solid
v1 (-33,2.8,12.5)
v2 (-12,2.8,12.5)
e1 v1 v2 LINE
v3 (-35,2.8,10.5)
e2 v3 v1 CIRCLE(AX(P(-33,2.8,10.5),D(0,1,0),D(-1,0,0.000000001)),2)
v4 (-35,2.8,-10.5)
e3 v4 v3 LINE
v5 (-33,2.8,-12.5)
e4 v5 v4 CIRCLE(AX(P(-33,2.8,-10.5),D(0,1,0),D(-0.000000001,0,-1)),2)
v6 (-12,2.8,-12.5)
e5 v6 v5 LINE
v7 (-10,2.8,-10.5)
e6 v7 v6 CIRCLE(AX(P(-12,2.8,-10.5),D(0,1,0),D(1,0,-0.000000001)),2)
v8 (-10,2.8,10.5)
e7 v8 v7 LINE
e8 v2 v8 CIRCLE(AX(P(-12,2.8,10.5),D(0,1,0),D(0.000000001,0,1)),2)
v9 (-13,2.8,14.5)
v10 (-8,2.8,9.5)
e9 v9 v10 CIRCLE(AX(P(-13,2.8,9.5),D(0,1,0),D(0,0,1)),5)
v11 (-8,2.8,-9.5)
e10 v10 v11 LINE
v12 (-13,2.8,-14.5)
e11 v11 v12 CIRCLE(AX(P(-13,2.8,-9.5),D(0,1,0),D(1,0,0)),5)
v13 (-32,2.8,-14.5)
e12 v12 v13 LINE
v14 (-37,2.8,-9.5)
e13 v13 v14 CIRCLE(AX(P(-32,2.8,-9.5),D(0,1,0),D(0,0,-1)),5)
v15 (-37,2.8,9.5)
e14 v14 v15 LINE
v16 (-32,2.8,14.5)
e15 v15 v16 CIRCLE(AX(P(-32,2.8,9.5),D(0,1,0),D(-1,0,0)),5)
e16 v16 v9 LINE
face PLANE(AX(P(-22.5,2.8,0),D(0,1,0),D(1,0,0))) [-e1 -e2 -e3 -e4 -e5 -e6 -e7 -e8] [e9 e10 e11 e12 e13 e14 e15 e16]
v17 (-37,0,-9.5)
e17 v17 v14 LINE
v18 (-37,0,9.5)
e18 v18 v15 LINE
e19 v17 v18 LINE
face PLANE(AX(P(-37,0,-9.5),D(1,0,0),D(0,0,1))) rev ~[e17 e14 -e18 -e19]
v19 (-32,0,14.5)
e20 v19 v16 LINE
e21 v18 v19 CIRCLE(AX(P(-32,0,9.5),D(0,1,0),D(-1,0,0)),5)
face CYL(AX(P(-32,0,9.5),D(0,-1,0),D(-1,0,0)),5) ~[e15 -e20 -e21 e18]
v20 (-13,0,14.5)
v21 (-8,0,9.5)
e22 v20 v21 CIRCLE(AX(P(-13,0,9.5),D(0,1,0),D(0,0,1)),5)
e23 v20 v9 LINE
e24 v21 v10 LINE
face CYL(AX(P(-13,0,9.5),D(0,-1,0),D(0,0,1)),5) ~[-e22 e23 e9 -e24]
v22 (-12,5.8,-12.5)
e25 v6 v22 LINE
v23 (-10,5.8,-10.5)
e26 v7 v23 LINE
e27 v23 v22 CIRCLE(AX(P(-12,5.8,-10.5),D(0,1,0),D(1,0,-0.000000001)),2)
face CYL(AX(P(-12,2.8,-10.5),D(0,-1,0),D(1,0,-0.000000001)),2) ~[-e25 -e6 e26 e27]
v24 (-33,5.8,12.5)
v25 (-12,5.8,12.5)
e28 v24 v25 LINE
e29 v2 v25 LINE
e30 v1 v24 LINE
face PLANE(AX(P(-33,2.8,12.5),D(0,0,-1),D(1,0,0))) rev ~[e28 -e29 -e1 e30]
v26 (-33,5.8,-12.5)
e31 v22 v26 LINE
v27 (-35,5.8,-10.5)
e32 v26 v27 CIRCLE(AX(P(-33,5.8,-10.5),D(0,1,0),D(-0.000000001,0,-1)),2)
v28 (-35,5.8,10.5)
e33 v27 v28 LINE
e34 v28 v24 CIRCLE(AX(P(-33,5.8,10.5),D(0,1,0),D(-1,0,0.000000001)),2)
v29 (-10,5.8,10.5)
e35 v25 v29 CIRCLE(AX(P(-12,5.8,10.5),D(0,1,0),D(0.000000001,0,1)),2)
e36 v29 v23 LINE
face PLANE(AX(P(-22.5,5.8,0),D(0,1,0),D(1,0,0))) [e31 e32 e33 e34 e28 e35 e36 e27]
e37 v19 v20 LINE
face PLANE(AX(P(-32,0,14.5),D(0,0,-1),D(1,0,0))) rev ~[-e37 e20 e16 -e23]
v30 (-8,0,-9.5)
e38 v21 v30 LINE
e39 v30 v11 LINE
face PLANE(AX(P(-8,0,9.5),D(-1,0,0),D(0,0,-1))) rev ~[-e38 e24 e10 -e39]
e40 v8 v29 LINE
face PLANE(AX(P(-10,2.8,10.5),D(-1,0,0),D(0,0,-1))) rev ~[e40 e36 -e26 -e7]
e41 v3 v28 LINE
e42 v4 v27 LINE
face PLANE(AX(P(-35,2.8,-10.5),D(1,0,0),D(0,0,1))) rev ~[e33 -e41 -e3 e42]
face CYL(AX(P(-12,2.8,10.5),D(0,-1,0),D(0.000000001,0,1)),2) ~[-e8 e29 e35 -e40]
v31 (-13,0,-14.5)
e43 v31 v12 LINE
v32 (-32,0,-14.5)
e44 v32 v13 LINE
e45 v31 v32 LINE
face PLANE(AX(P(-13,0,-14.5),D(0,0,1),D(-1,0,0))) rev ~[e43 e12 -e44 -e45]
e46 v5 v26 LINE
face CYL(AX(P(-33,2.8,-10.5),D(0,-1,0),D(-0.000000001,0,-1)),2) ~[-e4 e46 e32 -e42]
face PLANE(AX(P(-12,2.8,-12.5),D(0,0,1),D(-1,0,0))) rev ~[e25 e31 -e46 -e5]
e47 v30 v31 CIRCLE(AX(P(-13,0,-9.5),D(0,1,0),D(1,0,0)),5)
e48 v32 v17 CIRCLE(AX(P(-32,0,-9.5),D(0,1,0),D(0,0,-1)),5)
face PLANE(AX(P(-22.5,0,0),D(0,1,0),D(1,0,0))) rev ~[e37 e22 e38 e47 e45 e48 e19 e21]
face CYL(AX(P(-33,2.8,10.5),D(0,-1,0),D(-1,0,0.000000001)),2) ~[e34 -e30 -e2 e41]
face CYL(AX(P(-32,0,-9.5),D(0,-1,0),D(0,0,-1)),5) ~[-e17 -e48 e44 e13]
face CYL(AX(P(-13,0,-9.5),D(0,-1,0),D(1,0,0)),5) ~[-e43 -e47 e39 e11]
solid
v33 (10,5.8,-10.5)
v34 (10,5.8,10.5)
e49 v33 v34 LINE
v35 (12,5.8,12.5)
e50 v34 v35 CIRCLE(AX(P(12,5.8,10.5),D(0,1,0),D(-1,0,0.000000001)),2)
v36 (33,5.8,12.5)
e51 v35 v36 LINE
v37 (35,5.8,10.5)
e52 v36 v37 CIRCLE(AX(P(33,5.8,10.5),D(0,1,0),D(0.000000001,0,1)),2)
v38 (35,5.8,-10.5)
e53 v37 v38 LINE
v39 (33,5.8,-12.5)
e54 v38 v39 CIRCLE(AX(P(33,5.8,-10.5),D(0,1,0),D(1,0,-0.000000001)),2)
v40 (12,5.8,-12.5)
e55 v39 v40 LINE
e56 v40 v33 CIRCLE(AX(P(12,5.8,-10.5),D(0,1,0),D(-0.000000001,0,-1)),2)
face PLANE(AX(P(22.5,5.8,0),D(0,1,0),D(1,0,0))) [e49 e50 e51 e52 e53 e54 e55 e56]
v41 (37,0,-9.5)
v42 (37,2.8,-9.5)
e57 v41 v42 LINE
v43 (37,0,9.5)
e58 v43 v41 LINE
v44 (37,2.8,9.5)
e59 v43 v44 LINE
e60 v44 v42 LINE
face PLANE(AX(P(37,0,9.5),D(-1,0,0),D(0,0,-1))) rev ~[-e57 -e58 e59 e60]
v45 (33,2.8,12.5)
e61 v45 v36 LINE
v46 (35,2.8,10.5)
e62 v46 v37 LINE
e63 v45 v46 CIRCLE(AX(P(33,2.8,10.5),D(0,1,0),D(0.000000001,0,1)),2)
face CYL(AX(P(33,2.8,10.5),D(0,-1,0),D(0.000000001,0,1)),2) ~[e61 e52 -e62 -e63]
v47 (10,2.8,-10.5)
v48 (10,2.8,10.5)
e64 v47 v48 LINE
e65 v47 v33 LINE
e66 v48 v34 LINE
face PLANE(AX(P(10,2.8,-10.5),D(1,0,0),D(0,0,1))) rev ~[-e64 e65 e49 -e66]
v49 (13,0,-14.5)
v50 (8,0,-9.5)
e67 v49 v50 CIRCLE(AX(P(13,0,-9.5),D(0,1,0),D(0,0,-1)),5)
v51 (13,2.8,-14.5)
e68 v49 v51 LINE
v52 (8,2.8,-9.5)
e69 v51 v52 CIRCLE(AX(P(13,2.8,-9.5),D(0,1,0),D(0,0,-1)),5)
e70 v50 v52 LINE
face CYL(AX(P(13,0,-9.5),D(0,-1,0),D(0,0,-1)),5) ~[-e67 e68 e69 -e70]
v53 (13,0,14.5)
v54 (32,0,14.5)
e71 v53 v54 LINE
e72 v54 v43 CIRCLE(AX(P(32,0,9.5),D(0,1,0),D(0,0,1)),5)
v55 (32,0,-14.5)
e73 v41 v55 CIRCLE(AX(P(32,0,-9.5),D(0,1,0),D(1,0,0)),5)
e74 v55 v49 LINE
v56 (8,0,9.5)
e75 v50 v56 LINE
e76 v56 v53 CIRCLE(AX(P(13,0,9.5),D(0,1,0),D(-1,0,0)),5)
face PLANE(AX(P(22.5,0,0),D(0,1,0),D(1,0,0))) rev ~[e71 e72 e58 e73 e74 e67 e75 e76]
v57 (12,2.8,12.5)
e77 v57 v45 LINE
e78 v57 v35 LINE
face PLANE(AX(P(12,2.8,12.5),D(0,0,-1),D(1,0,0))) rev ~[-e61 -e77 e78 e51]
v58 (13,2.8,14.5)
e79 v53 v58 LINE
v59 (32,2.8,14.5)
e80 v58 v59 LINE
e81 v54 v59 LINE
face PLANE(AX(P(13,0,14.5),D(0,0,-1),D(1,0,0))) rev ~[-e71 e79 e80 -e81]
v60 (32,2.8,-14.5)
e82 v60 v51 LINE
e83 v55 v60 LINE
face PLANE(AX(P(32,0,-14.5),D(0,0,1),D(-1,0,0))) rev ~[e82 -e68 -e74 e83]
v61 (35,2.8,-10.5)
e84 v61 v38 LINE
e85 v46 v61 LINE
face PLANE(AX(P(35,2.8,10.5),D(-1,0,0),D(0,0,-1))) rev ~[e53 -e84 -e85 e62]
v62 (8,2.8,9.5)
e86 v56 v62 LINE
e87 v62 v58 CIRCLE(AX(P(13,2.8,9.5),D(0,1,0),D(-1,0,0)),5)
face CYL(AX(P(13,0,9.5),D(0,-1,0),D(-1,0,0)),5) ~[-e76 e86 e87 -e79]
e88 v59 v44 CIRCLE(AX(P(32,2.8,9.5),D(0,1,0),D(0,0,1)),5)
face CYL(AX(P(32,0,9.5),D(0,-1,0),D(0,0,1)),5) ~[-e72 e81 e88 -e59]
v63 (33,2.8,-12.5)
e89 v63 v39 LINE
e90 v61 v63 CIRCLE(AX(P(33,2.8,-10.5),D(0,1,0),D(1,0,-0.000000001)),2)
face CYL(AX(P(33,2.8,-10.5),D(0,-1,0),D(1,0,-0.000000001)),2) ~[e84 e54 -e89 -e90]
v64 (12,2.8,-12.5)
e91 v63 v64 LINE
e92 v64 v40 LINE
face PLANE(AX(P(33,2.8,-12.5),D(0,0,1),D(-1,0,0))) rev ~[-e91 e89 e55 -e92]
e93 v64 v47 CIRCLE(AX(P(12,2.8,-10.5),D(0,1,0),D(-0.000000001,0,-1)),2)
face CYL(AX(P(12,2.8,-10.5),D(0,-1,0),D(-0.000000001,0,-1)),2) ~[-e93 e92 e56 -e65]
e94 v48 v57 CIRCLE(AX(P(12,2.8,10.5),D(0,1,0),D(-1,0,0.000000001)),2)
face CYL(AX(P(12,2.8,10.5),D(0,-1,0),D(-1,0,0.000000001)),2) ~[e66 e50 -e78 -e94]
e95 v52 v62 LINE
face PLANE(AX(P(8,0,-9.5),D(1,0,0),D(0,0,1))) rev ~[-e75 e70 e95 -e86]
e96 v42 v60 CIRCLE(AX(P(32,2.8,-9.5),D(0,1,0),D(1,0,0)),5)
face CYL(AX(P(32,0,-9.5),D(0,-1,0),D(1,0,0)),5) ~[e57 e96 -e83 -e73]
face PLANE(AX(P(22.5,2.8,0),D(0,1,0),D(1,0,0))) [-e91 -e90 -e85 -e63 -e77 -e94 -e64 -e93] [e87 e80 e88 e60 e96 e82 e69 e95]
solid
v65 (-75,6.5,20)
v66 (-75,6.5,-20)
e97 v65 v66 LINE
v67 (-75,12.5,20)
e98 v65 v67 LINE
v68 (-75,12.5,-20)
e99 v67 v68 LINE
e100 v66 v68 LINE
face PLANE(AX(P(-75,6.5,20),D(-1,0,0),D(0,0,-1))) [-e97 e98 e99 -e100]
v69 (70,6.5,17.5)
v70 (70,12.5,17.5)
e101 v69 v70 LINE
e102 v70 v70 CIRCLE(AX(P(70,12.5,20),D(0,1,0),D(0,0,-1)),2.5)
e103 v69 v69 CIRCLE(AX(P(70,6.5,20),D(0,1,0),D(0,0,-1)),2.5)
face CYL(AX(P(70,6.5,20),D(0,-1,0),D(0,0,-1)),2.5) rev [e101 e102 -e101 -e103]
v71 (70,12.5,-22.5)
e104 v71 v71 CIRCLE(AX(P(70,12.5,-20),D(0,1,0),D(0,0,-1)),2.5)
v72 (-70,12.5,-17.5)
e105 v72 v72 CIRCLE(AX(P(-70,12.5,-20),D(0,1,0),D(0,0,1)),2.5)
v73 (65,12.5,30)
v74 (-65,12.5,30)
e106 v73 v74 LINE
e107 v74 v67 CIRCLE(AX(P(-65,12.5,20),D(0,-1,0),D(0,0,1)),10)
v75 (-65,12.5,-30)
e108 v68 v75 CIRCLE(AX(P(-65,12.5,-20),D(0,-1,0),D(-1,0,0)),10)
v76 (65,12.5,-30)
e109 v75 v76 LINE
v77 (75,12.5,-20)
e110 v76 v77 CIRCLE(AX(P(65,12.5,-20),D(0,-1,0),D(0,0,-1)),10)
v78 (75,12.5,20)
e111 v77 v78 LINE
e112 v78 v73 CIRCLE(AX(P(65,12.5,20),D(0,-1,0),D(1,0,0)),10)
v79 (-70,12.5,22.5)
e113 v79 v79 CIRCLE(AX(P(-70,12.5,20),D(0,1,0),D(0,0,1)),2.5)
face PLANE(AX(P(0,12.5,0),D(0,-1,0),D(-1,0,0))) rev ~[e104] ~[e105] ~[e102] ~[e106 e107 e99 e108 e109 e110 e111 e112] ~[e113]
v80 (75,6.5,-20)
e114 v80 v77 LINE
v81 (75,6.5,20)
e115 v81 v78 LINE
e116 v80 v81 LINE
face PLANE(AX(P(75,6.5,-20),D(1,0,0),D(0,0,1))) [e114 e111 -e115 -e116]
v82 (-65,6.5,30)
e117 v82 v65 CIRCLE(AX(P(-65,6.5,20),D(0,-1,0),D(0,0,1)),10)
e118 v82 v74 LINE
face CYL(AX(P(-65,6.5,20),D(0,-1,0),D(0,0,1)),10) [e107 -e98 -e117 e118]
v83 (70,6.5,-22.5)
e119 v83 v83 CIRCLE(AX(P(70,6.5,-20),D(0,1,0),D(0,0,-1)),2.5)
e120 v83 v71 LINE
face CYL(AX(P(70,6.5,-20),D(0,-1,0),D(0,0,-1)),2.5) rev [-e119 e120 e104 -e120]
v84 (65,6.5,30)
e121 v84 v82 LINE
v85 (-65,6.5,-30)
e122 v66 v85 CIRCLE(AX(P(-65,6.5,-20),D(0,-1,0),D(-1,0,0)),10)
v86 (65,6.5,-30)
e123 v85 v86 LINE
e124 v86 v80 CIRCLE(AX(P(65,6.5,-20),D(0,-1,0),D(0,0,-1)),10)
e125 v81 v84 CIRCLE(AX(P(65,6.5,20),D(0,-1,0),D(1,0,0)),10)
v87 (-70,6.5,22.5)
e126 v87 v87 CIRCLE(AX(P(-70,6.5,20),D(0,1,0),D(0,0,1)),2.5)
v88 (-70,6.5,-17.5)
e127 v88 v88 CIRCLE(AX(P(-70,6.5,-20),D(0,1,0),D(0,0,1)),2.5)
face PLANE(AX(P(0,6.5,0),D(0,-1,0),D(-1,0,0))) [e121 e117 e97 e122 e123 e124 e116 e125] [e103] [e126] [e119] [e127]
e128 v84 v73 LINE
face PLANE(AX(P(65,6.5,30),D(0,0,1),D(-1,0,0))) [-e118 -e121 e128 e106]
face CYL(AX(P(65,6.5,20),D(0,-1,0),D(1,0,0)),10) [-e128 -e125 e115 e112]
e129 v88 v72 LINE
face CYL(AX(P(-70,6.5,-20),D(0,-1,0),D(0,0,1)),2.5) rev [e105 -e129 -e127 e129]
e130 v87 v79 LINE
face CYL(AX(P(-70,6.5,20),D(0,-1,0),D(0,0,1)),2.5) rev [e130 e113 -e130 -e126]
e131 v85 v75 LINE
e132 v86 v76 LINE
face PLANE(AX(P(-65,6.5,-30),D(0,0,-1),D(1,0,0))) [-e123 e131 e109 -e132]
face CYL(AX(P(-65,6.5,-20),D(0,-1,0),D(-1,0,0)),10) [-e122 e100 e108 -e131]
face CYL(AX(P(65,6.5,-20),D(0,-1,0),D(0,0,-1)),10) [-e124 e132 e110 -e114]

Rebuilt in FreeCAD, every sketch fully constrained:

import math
import FreeCAD as App
import Part
import Sketcher

V = App.Vector
Q = App.Units.Quantity

doc = App.newDocument("Part")
body = doc.addObject("PartDesign::Body", "Body")

# Sketch on XZ plane
sketch1 = body.newObject("Sketcher::SketchObject", "Sketch")
sketch1.AttachmentSupport = (doc.getObject("XZ_Plane"), [""])
sketch1.MapMode = "FlatFace"
sketch1.addGeometry([
    Part.LineSegment(V(-32, 14, 0), V(-13, 14, 0)),  # 0
    Part.ArcOfCircle(Part.Circle(V(-13, 10, 0), V(0, 0, 1), 5), math.radians(0), math.radians(90)),  # 1
    Part.LineSegment(V(-8, 10, 0), V(-8, -10, 0)),  # 2
    Part.ArcOfCircle(Part.Circle(V(-13, -10, 0), V(0, 0, 1), 5), math.radians(-90), math.radians(0)),  # 3
    Part.LineSegment(V(-13, -14, 0), V(-32, -14, 0)),  # 4
    Part.ArcOfCircle(Part.Circle(V(-32, -10, 0), V(0, 0, 1), 5), math.radians(180), math.radians(270)),  # 5
    Part.LineSegment(V(-37, -10, 0), V(-37, 10, 0)),  # 6
    Part.ArcOfCircle(Part.Circle(V(-32, 10, 0), V(0, 0, 1), 5), math.radians(90), math.radians(180)),  # 7
], False)
sketch1.addConstraint([
    Sketcher.Constraint("Tangent", 0, 2, 1, 2),
    Sketcher.Constraint("Tangent", 1, 1, 2, 1),
    Sketcher.Constraint("Tangent", 2, 2, 3, 2),
    Sketcher.Constraint("Tangent", 3, 1, 4, 1),
    Sketcher.Constraint("Tangent", 4, 2, 5, 2),
    Sketcher.Constraint("Tangent", 5, 1, 6, 1),
    Sketcher.Constraint("Tangent", 6, 2, 7, 2),
    Sketcher.Constraint("Tangent", 7, 1, 0, 1),
    Sketcher.Constraint("Horizontal", 0),
    Sketcher.Constraint("Vertical", 2),
    Sketcher.Constraint("Horizontal", 4),
    Sketcher.Constraint("Vertical", 6),
    Sketcher.Constraint("Equal", 1, 3),
    Sketcher.Constraint("Equal", 3, 5),
    Sketcher.Constraint("Equal", 5, 7),
    Sketcher.Constraint("Equal", 4, 2),
    Sketcher.Constraint("Radius", 1, Q("5 mm")),
    Sketcher.Constraint("DistanceX", 0, 1, 0, 2, Q("19 mm")),
    Sketcher.Constraint("DistanceX", 1, 3, -1, 1, Q("13 mm")),
    Sketcher.Constraint("DistanceY", -1, 1, 1, 3, Q("9.5 mm")),
])
pad1 = body.newObject("PartDesign::Pad", "Pad")
pad1.Profile = sketch1
pad1.Length = 2.8
pad1.Reversed = True
body2 = doc.addObject("PartDesign::Body", "Body001")

# Sketch on XZ plane
sketch2 = body2.newObject("Sketcher::SketchObject", "Sketch001")
sketch2.AttachmentSupport = (doc.getObject("XZ_Plane001"), [""])
sketch2.MapMode = "FlatFace"
sketch2.addGeometry([
    Part.LineSegment(V(13, 14, 0), V(32, 14, 0)),  # 0
    Part.ArcOfCircle(Part.Circle(V(32, 10, 0), V(0, 0, 1), 5), math.radians(0), math.radians(90)),  # 1
    Part.LineSegment(V(37, 10, 0), V(37, -10, 0)),  # 2
    Part.ArcOfCircle(Part.Circle(V(32, -10, 0), V(0, 0, 1), 5), math.radians(-90), math.radians(0)),  # 3
    Part.LineSegment(V(32, -14, 0), V(13, -14, 0)),  # 4
    Part.ArcOfCircle(Part.Circle(V(13, -10, 0), V(0, 0, 1), 5), math.radians(180), math.radians(270)),  # 5
    Part.LineSegment(V(8, -10, 0), V(8, 10, 0)),  # 6
    Part.ArcOfCircle(Part.Circle(V(13, 10, 0), V(0, 0, 1), 5), math.radians(90), math.radians(180)),  # 7
], False)
sketch2.addConstraint([
    Sketcher.Constraint("Tangent", 0, 2, 1, 2),
    Sketcher.Constraint("Tangent", 1, 1, 2, 1),
    Sketcher.Constraint("Tangent", 2, 2, 3, 2),
    Sketcher.Constraint("Tangent", 3, 1, 4, 1),
    Sketcher.Constraint("Tangent", 4, 2, 5, 2),
    Sketcher.Constraint("Tangent", 5, 1, 6, 1),
    Sketcher.Constraint("Tangent", 6, 2, 7, 2),
    Sketcher.Constraint("Tangent", 7, 1, 0, 1),
    Sketcher.Constraint("Horizontal", 0),
    Sketcher.Constraint("Vertical", 2),
    Sketcher.Constraint("Horizontal", 4),
    Sketcher.Constraint("Vertical", 6),
    Sketcher.Constraint("Equal", 1, 3),
    Sketcher.Constraint("Equal", 3, 5),
    Sketcher.Constraint("Equal", 5, 7),
    Sketcher.Constraint("Equal", 4, 2),
    Sketcher.Constraint("Radius", 1, Q("5 mm")),
    Sketcher.Constraint("DistanceX", 0, 1, 0, 2, Q("19 mm")),
    Sketcher.Constraint("DistanceX", -1, 1, 1, 3, Q("32 mm")),
    Sketcher.Constraint("DistanceY", -1, 1, 1, 3, Q("9.5 mm")),
])
pad2 = body2.newObject("PartDesign::Pad", "Pad001")
pad2.Profile = sketch2
pad2.Length = 2.8
pad2.Reversed = True
body.AllowCompound = True
doc.recompute()

boolean = body.newObject("PartDesign::Boolean", "Boolean")
boolean.Type = "Fuse"
boolean.addObjects([body2])

# Sketch on XZ plane
sketch3 = body.newObject("Sketcher::SketchObject", "Sketch002")
sketch3.AttachmentSupport = (doc.getObject("XZ_Plane"), [""])
sketch3.MapMode = "FlatFace"
sketch3.AttachmentOffset = App.Placement(V(0, 0, -2.8), App.Rotation())
sketch3.addGeometry([
    Part.LineSegment(V(-33, 12.5, 0), V(-12, 12.5, 0)),  # 0
    Part.ArcOfCircle(Part.Circle(V(-12, 10.5, 0), V(0, 0, 1), 2), math.radians(0), math.radians(90)),  # 1
    Part.LineSegment(V(-10, 10.5, 0), V(-10, -10.5, 0)),  # 2
    Part.ArcOfCircle(Part.Circle(V(-12, -10.5, 0), V(0, 0, 1), 2), math.radians(-90), math.radians(0)),  # 3
    Part.LineSegment(V(-12, -12.5, 0), V(-33, -12.5, 0)),  # 4
    Part.ArcOfCircle(Part.Circle(V(-33, -10.5, 0), V(0, 0, 1), 2), math.radians(-180), math.radians(-90)),  # 5
    Part.LineSegment(V(-35, -10.5, 0), V(-35, 10.5, 0)),  # 6
    Part.ArcOfCircle(Part.Circle(V(-33, 10.5, 0), V(0, 0, 1), 2), math.radians(90), math.radians(180)),  # 7
    Part.LineSegment(V(12, 12.5, 0), V(33, 12.5, 0)),  # 8
    Part.ArcOfCircle(Part.Circle(V(33, 10.5, 0), V(0, 0, 1), 2), math.radians(0), math.radians(90)),  # 9
    Part.LineSegment(V(35, 10.5, 0), V(35, -10.5, 0)),  # 10
    Part.ArcOfCircle(Part.Circle(V(33, -10.5, 0), V(0, 0, 1), 2), math.radians(-90), math.radians(0)),  # 11
    Part.LineSegment(V(33, -12.5, 0), V(12, -12.5, 0)),  # 12
    Part.ArcOfCircle(Part.Circle(V(12, -10.5, 0), V(0, 0, 1), 2), math.radians(-180), math.radians(-90)),  # 13
    Part.LineSegment(V(10, -10.5, 0), V(10, 10.5, 0)),  # 14
    Part.ArcOfCircle(Part.Circle(V(12, 10.5, 0), V(0, 0, 1), 2), math.radians(90), math.radians(180)),  # 15
], False)
sketch3.addConstraint([
    Sketcher.Constraint("Tangent", 0, 2, 1, 2),
    Sketcher.Constraint("Tangent", 1, 1, 2, 1),
    Sketcher.Constraint("Tangent", 2, 2, 3, 2),
    Sketcher.Constraint("Tangent", 3, 1, 4, 1),
    Sketcher.Constraint("Tangent", 4, 2, 5, 2),
    Sketcher.Constraint("Tangent", 5, 1, 6, 1),
    Sketcher.Constraint("Tangent", 6, 2, 7, 2),
    Sketcher.Constraint("Tangent", 7, 1, 0, 1),
    Sketcher.Constraint("Tangent", 8, 2, 9, 2),
    Sketcher.Constraint("Tangent", 9, 1, 10, 1),
    Sketcher.Constraint("Tangent", 10, 2, 11, 2),
    Sketcher.Constraint("Tangent", 11, 1, 12, 1),
    Sketcher.Constraint("Tangent", 12, 2, 13, 2),
    Sketcher.Constraint("Tangent", 13, 1, 14, 1),
    Sketcher.Constraint("Tangent", 14, 2, 15, 2),
    Sketcher.Constraint("Tangent", 15, 1, 8, 1),
    Sketcher.Constraint("Horizontal", 0),
    Sketcher.Constraint("Vertical", 2),
    Sketcher.Constraint("Horizontal", 4),
    Sketcher.Constraint("Vertical", 6),
    Sketcher.Constraint("Horizontal", 8),
    Sketcher.Constraint("Vertical", 10),
    Sketcher.Constraint("Horizontal", 12),
    Sketcher.Constraint("Vertical", 14),
    Sketcher.Constraint("Equal", 1, 3),
    Sketcher.Constraint("Equal", 3, 5),
    Sketcher.Constraint("Equal", 5, 7),
    Sketcher.Constraint("Equal", 7, 9),
    Sketcher.Constraint("Equal", 9, 11),
    Sketcher.Constraint("Equal", 11, 13),
    Sketcher.Constraint("Equal", 13, 15),
    Sketcher.Constraint("Symmetric", 5, 3, 9, 3, -1, 1),
    Sketcher.Constraint("Symmetric", 1, 3, 13, 3, -1, 1),
    Sketcher.Constraint("Horizontal", 7, 3, 9, 3),
    Sketcher.Constraint("Equal", 12, 2),
    Sketcher.Constraint("Radius", 1, Q("2 mm")),
    Sketcher.Constraint("DistanceX", 0, 1, 0, 2, Q("21 mm")),
    Sketcher.Constraint("DistanceX", 1, 3, -1, 1, Q("12 mm")),
])
pad3 = body.newObject("PartDesign::Pad", "Pad002")
pad3.Profile = sketch3
pad3.Length = 3
pad3.Reversed = True
body3 = doc.addObject("PartDesign::Body", "Body002")

# Sketch on XZ plane
sketch4 = body3.newObject("Sketcher::SketchObject", "Sketch003")
sketch4.AttachmentSupport = (doc.getObject("XZ_Plane002"), [""])
sketch4.MapMode = "FlatFace"
sketch4.AttachmentOffset = App.Placement(V(0, 0, -6.5), App.Rotation())
sketch4.addGeometry([
    Part.LineSegment(V(-65, 30, 0), V(65, 30, 0)),  # 0
    Part.ArcOfCircle(Part.Circle(V(65, 20, 0), V(0, 0, 1), 10), math.radians(0), math.radians(90)),  # 1
    Part.LineSegment(V(75, 20, 0), V(75, -20, 0)),  # 2
    Part.ArcOfCircle(Part.Circle(V(65, -20, 0), V(0, 0, 1), 10), math.radians(-90), math.radians(0)),  # 3
    Part.LineSegment(V(65, -30, 0), V(-65, -30, 0)),  # 4
    Part.ArcOfCircle(Part.Circle(V(-65, -20, 0), V(0, 0, 1), 10), math.radians(180), math.radians(270)),  # 5
    Part.LineSegment(V(-75, -20, 0), V(-75, 20, 0)),  # 6
    Part.ArcOfCircle(Part.Circle(V(-65, 20, 0), V(0, 0, 1), 10), math.radians(90), math.radians(180)),  # 7
    Part.Circle(V(70, 20, 0), V(0, 0, 1), 2.5),  # 8
    Part.Circle(V(-70, 20, 0), V(0, 0, 1), 2.5),  # 9
    Part.Circle(V(70, -20, 0), V(0, 0, 1), 2.5),  # 10
    Part.Circle(V(-70, -20, 0), V(0, 0, 1), 2.5),  # 11
], False)
sketch4.addConstraint([
    Sketcher.Constraint("Tangent", 0, 2, 1, 2),
    Sketcher.Constraint("Tangent", 1, 1, 2, 1),
    Sketcher.Constraint("Tangent", 2, 2, 3, 2),
    Sketcher.Constraint("Tangent", 3, 1, 4, 1),
    Sketcher.Constraint("Tangent", 4, 2, 5, 2),
    Sketcher.Constraint("Tangent", 5, 1, 6, 1),
    Sketcher.Constraint("Tangent", 6, 2, 7, 2),
    Sketcher.Constraint("Tangent", 7, 1, 0, 1),
    Sketcher.Constraint("Horizontal", 0),
    Sketcher.Constraint("Vertical", 2),
    Sketcher.Constraint("Horizontal", 4),
    Sketcher.Constraint("Vertical", 6),
    Sketcher.Constraint("Equal", 1, 3),
    Sketcher.Constraint("Equal", 3, 5),
    Sketcher.Constraint("Equal", 5, 7),
    Sketcher.Constraint("Equal", 8, 9),
    Sketcher.Constraint("Equal", 9, 10),
    Sketcher.Constraint("Equal", 10, 11),
    Sketcher.Constraint("Symmetric", 1, 3, 5, 3, -1, 1),
    Sketcher.Constraint("Symmetric", 9, 3, 10, 3, -1, 1),
    Sketcher.Constraint("Symmetric", 8, 3, 11, 3, -1, 1),
    Sketcher.Constraint("Symmetric", 8, 3, 9, 3, -2),
    Sketcher.Constraint("Horizontal", 7, 3, 8, 3),
    Sketcher.Constraint("Diameter", 8, Q("5 mm")),
    Sketcher.Constraint("Radius", 1, Q("10 mm")),
    Sketcher.Constraint("DistanceX", 0, 1, 0, 2, Q("130 mm")),
    Sketcher.Constraint("DistanceY", 2, 2, 2, 1, Q("40 mm")),
    Sketcher.Constraint("DistanceX", -1, 1, 8, 3, Q("70 mm")),
])
pad4 = body3.newObject("PartDesign::Pad", "Pad003")
pad4.Profile = sketch4
pad4.Length = 6
pad4.Reversed = True

doc.recompute()
